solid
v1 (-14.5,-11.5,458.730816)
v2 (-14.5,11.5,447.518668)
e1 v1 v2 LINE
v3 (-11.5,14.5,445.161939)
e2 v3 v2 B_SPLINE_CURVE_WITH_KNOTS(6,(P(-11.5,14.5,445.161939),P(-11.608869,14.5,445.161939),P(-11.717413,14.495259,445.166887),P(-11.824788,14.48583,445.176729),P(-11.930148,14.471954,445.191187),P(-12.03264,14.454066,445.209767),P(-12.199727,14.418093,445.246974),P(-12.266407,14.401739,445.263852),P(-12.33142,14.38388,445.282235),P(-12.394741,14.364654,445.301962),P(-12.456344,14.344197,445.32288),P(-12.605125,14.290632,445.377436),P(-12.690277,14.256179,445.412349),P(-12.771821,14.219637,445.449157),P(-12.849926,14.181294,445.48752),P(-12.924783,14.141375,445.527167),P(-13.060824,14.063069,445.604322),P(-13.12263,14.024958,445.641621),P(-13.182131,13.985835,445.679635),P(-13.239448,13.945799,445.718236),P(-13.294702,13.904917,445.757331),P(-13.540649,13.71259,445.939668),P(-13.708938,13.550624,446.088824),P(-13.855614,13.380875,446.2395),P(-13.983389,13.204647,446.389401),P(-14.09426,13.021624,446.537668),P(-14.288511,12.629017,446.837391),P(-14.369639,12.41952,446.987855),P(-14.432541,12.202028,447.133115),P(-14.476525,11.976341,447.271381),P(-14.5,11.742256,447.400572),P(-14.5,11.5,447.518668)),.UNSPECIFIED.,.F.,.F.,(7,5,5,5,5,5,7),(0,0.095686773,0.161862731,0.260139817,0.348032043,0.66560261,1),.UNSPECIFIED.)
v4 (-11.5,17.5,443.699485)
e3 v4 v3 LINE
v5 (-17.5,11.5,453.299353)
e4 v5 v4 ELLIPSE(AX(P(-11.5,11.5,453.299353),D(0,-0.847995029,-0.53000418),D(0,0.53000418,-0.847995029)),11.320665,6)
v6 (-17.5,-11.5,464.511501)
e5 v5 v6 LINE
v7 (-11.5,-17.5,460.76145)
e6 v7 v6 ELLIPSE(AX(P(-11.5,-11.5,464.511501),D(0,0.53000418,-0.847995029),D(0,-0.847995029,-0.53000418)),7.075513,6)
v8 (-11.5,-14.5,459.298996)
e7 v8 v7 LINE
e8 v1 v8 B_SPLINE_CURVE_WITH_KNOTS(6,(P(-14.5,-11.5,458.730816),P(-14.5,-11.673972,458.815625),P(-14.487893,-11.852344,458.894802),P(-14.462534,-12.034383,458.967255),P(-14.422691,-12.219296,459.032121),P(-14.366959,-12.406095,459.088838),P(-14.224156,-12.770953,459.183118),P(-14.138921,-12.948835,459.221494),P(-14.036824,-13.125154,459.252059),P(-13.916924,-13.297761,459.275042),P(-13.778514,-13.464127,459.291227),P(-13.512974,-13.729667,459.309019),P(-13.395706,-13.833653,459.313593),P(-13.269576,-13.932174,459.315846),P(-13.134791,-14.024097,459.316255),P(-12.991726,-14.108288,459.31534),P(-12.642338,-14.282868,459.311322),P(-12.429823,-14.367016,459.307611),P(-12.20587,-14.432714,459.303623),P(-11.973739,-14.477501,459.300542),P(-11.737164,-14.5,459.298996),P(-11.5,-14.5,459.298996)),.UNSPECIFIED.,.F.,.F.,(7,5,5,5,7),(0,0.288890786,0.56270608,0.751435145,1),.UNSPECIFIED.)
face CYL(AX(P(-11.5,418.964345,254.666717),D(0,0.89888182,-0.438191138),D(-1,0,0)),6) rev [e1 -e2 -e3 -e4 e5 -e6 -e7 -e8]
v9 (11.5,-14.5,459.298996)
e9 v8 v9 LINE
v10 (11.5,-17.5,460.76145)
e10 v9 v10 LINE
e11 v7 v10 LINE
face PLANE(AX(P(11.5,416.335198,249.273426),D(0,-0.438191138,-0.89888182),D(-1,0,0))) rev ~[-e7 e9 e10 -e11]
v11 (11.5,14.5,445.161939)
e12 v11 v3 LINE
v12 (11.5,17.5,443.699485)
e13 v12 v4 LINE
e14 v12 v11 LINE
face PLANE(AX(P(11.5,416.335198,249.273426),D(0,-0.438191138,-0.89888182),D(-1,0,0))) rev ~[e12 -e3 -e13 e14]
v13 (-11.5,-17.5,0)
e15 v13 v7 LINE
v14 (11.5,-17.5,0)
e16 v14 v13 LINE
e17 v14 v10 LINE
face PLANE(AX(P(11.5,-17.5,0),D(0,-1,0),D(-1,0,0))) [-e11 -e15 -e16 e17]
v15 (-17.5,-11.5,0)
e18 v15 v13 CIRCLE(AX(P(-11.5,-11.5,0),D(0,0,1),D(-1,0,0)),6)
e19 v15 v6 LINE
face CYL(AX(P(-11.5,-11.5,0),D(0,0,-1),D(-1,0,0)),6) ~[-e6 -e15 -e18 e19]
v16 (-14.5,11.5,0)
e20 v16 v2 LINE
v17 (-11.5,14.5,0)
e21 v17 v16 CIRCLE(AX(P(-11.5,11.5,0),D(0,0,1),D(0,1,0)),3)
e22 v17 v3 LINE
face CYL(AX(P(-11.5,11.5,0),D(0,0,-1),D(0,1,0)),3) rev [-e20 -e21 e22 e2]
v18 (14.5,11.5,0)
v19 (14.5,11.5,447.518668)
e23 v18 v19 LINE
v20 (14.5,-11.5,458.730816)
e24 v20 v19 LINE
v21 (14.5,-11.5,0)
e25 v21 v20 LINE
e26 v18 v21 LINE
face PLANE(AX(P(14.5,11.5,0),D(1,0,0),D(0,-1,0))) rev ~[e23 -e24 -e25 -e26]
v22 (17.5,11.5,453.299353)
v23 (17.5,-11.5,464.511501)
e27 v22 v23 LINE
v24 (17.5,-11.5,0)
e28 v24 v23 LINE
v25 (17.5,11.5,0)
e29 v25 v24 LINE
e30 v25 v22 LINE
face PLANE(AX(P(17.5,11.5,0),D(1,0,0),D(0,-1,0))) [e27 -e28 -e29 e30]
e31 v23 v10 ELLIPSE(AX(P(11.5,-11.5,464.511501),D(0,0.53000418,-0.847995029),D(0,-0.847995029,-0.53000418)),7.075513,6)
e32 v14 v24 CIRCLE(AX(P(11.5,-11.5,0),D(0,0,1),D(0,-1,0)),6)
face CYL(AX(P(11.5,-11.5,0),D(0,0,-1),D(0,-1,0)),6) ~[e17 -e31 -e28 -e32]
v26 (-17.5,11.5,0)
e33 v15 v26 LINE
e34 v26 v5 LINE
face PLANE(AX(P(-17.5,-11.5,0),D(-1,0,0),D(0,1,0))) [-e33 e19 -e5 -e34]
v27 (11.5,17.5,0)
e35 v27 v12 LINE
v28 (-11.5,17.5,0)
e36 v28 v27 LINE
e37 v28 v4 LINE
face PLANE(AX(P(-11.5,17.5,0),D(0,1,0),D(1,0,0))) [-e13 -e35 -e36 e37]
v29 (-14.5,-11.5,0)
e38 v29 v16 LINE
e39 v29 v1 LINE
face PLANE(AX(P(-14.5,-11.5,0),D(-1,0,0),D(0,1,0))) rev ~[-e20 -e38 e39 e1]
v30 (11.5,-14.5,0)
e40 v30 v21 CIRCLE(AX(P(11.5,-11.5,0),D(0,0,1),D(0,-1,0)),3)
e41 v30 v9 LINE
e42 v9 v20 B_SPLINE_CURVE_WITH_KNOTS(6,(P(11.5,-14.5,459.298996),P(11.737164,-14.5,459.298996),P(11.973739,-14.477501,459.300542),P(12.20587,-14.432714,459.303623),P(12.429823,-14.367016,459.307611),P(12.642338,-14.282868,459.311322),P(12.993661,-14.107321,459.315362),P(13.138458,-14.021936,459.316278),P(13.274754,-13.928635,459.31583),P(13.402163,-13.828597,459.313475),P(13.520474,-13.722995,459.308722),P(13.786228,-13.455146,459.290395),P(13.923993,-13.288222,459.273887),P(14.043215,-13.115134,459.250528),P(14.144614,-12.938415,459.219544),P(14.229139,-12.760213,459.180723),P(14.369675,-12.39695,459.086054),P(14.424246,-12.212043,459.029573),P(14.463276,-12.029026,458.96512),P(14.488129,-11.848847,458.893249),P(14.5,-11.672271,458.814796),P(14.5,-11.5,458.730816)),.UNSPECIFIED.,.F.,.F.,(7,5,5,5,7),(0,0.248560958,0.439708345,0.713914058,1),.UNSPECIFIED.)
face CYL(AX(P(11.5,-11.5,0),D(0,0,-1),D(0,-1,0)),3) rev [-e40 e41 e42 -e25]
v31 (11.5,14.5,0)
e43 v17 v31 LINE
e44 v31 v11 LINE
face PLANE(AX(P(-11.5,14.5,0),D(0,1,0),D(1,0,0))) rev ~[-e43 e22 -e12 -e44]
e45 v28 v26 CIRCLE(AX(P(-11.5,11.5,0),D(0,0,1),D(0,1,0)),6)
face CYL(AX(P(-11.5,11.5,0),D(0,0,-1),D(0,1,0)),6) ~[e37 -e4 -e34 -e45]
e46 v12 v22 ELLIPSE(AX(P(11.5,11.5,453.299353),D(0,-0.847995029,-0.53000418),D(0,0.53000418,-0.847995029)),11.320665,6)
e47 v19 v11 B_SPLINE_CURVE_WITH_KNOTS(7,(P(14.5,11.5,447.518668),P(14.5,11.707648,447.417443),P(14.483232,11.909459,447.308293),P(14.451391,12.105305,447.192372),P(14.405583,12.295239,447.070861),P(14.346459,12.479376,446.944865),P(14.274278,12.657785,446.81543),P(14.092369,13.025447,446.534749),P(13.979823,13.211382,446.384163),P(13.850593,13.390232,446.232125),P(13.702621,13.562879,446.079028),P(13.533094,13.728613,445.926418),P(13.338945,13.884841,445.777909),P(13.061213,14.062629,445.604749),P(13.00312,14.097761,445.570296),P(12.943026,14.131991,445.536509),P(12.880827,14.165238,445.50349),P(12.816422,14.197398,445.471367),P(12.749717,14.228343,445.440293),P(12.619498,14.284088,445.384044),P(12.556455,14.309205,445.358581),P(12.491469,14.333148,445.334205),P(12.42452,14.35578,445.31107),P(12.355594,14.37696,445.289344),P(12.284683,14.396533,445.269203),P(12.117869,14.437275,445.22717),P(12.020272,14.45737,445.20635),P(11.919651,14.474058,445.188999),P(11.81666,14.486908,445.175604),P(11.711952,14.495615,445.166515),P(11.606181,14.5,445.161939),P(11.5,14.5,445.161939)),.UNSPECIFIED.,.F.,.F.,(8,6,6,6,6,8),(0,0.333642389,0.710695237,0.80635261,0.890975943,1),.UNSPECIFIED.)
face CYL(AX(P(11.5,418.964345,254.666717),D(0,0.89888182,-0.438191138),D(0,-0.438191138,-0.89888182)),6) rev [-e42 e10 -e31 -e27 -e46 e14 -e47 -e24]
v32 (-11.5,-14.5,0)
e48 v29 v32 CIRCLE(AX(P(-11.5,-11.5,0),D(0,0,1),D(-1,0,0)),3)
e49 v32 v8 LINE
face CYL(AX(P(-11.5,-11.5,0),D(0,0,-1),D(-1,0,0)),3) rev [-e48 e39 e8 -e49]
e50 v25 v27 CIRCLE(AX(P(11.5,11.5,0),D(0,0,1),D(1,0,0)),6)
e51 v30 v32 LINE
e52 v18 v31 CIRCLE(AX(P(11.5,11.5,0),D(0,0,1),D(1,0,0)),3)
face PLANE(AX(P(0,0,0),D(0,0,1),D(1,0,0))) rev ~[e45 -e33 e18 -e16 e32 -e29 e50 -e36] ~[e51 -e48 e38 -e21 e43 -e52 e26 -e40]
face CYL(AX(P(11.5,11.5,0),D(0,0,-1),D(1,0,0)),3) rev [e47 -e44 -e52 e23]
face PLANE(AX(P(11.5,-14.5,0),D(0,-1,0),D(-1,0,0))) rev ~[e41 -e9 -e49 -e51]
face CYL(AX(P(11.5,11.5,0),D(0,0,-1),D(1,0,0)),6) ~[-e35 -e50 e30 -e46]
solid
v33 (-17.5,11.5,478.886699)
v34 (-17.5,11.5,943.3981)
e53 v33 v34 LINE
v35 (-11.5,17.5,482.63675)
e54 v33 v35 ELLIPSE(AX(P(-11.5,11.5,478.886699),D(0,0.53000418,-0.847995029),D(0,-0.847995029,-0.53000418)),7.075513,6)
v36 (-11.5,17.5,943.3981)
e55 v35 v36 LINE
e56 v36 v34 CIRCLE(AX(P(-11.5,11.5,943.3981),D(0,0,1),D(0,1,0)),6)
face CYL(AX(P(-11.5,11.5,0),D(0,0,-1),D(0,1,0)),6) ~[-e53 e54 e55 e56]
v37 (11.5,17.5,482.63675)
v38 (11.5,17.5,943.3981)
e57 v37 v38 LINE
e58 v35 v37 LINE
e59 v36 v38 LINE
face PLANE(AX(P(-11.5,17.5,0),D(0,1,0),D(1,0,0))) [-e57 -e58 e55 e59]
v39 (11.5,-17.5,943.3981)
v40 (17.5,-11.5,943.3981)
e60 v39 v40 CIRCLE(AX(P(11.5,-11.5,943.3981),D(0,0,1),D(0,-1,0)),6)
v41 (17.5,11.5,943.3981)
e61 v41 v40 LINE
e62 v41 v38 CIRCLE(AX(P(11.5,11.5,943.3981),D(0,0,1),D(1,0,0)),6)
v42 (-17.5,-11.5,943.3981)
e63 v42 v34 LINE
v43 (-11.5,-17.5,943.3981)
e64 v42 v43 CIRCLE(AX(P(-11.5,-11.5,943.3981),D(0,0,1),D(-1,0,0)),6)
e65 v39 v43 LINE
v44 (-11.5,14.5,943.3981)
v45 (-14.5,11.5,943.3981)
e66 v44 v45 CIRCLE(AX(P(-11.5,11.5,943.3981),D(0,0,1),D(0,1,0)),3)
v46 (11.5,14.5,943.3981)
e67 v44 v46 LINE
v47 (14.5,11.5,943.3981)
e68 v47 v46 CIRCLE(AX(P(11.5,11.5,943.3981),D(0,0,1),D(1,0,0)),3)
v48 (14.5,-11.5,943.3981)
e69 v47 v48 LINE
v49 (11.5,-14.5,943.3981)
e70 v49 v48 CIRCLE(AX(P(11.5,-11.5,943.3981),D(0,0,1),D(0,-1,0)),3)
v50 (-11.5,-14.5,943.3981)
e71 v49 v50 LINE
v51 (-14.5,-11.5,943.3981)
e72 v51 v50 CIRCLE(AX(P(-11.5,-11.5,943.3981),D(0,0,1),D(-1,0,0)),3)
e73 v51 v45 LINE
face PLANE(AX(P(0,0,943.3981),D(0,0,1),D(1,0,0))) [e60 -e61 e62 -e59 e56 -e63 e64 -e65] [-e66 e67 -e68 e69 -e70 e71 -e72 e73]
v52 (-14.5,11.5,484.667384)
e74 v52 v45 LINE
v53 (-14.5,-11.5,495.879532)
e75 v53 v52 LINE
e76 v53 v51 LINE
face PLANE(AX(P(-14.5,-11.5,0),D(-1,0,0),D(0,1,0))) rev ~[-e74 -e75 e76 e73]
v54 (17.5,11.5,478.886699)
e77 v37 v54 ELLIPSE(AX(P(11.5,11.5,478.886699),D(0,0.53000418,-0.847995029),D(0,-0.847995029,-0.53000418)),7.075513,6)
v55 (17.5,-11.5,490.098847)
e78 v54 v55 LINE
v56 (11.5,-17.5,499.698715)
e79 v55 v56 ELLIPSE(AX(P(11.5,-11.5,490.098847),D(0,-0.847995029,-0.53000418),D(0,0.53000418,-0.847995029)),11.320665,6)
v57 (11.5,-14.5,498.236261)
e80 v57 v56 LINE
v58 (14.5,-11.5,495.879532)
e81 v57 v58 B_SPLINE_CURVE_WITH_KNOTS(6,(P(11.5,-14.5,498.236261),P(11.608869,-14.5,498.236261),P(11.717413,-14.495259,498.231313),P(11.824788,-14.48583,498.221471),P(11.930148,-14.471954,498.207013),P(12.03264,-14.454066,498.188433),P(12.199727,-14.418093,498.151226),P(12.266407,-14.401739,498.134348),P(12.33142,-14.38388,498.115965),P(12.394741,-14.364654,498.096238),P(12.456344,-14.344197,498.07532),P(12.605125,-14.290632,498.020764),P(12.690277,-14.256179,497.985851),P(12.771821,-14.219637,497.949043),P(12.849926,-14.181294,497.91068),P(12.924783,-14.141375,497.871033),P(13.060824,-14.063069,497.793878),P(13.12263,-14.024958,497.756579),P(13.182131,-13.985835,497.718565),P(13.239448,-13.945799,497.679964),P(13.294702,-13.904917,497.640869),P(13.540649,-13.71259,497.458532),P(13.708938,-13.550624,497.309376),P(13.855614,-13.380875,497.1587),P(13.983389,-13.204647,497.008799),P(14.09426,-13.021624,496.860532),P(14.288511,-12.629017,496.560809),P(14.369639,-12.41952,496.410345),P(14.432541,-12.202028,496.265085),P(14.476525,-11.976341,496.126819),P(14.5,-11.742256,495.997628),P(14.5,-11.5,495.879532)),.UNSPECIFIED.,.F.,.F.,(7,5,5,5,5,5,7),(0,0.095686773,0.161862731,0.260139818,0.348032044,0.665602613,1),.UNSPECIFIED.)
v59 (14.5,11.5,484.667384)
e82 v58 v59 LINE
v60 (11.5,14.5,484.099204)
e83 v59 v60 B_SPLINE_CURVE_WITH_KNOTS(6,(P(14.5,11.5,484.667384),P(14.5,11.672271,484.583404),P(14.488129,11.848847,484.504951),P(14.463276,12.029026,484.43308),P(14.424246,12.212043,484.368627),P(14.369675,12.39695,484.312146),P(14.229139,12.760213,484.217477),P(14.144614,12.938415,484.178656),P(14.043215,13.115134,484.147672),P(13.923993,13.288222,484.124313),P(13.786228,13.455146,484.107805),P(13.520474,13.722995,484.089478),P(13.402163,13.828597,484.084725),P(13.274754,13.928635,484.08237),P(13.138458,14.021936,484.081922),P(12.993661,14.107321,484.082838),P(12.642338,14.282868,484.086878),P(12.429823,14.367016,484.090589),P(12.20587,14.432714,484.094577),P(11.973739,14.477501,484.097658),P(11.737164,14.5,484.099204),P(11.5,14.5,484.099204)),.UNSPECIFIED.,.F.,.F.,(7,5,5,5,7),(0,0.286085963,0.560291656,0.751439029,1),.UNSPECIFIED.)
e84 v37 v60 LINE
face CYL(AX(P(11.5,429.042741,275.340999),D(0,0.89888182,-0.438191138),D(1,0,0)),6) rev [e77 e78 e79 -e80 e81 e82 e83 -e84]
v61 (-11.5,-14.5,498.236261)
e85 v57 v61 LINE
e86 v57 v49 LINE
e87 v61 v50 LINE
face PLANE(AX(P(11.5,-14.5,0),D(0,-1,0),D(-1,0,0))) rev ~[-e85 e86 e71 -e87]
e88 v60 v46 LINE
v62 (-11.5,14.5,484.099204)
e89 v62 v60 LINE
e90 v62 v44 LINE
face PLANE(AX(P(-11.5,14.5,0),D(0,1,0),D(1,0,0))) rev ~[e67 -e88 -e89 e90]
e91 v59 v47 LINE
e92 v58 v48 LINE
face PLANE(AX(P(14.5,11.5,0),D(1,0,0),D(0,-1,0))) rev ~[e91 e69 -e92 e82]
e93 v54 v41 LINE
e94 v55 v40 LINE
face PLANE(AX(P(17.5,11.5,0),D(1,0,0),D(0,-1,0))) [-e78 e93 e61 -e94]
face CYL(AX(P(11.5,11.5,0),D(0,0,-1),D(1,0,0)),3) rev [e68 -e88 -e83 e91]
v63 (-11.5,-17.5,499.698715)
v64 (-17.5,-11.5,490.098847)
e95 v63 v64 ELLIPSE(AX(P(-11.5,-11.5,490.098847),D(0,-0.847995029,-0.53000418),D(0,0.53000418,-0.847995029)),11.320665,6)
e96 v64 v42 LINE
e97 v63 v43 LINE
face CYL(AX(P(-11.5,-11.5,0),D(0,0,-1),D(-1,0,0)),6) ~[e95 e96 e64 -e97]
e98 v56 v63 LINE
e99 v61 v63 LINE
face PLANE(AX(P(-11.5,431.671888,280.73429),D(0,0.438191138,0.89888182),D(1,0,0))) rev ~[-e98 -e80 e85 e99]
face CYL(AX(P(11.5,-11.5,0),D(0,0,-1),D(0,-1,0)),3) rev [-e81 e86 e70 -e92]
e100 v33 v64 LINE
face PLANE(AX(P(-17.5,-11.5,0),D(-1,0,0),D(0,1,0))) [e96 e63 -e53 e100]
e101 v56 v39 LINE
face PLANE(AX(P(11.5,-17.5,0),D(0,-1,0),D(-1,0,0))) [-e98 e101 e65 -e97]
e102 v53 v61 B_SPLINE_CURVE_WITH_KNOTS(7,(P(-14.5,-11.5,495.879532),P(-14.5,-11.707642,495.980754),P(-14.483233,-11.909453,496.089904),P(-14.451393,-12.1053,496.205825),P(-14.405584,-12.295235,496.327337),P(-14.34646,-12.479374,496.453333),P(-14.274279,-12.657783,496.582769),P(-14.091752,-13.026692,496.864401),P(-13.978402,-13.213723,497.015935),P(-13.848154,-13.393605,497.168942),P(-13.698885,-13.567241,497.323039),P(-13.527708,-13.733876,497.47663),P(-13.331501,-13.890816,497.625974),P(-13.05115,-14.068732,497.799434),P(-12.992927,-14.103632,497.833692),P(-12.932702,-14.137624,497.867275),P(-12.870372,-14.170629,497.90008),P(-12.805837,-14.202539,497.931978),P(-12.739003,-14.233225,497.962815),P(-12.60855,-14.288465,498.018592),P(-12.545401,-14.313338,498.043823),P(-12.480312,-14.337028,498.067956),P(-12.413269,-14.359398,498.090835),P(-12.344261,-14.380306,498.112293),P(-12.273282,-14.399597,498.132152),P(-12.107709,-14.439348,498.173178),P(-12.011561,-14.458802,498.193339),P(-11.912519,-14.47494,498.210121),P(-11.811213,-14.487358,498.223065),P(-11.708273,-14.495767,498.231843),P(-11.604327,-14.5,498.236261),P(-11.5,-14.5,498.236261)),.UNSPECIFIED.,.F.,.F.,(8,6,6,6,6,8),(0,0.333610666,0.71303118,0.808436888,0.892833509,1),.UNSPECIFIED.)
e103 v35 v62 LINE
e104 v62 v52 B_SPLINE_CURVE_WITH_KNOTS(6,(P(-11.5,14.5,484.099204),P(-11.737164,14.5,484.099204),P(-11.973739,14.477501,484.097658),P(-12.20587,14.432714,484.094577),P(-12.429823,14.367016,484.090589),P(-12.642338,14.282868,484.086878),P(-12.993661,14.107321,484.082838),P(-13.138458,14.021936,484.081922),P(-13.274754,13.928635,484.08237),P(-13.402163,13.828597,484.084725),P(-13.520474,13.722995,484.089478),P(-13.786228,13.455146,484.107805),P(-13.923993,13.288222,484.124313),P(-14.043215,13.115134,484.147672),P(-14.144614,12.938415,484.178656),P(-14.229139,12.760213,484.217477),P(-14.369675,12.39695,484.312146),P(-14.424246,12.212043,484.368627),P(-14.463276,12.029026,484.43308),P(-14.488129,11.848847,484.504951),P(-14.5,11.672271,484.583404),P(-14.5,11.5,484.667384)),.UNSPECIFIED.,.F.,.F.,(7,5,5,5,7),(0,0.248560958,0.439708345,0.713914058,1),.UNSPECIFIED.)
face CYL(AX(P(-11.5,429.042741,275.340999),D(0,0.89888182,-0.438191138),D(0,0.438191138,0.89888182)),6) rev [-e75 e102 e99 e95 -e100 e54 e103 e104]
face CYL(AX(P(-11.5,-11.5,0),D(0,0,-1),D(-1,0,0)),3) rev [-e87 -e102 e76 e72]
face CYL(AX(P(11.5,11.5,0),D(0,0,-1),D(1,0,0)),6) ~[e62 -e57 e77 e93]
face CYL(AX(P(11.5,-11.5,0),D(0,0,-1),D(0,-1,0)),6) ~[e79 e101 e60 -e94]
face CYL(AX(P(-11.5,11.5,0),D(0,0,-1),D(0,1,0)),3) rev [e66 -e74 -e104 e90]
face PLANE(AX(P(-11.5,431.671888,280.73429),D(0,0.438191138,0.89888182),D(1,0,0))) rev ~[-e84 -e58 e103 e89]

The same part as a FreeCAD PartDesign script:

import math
import FreeCAD as App
import Part
import Sketcher
from FreeCAD import Vector

doc = App.newDocument("Part")
body = doc.addObject("PartDesign::Body", "Body")
body.AllowCompound = True

# Sketch on XY plane
sketch1 = body.newObject("Sketcher::SketchObject", "Sketch")
sketch1.AttachmentSupport = (doc.getObject("XY_Plane"), [""])
sketch1.MapMode = "FlatFace"
sketch1.addGeometry(Part.LineSegment(Vector(-17.5, 11.5, 0), Vector(-17.5, -11.5, 0)), False)
sketch1.addGeometry(Part.ArcOfCircle(Part.Circle(Vector(-11.5, -11.5, 0), Vector(0, 0, 1), 6), math.radians(180), math.radians(270)), False)
sketch1.addGeometry(Part.LineSegment(Vector(-11.5, -17.5, 0), Vector(11.5, -17.5, 0)), False)
sketch1.addGeometry(Part.ArcOfCircle(Part.Circle(Vector(11.5, -11.5, 0), Vector(0, 0, 1), 6), math.radians(-90), math.radians(0)), False)
sketch1.addGeometry(Part.LineSegment(Vector(17.5, -11.5, 0), Vector(17.5, 11.5, 0)), False)
sketch1.addGeometry(Part.ArcOfCircle(Part.Circle(Vector(11.5, 11.5, 0), Vector(0, 0, 1), 6), math.radians(0), math.radians(90)), False)
sketch1.addGeometry(Part.LineSegment(Vector(11.5, 17.5, 0), Vector(-11.5, 17.5, 0)), False)
sketch1.addGeometry(Part.ArcOfCircle(Part.Circle(Vector(-11.5, 11.5, 0), Vector(0, 0, 1), 6), math.radians(90), math.radians(180)), False)
sketch1.addGeometry(Part.ArcOfCircle(Part.Circle(Vector(-11.5, 11.5, 0), Vector(0, 0, 1), 3), math.radians(90), math.radians(180)), False)
sketch1.addGeometry(Part.LineSegment(Vector(-11.5, 14.5, 0), Vector(11.5, 14.5, 0)), False)
sketch1.addGeometry(Part.ArcOfCircle(Part.Circle(Vector(11.5, 11.5, 0), Vector(0, 0, 1), 3), math.radians(0), math.radians(90)), False)
sketch1.addGeometry(Part.LineSegment(Vector(14.5, 11.5, 0), Vector(14.5, -11.5, 0)), False)
sketch1.addGeometry(Part.ArcOfCircle(Part.Circle(Vector(11.5, -11.5, 0), Vector(0, 0, 1), 3), math.radians(-90), math.radians(0)), False)
sketch1.addGeometry(Part.LineSegment(Vector(11.5, -14.5, 0), Vector(-11.5, -14.5, 0)), False)
sketch1.addGeometry(Part.ArcOfCircle(Part.Circle(Vector(-11.5, -11.5, 0), Vector(0, 0, 1), 3), math.radians(180), math.radians(270)), False)
sketch1.addGeometry(Part.LineSegment(Vector(-14.5, -11.5, 0), Vector(-14.5, 11.5, 0)), False)
sketch1.addConstraint(Sketcher.Constraint("Tangent", 0, 2, 1, 1))
sketch1.addConstraint(Sketcher.Constraint("Tangent", 1, 2, 2, 1))
sketch1.addConstraint(Sketcher.Constraint("Tangent", 2, 2, 3, 1))
sketch1.addConstraint(Sketcher.Constraint("Tangent", 3, 2, 4, 1))
sketch1.addConstraint(Sketcher.Constraint("Tangent", 4, 2, 5, 1))
sketch1.addConstraint(Sketcher.Constraint("Tangent", 5, 2, 6, 1))
sketch1.addConstraint(Sketcher.Constraint("Tangent", 6, 2, 7, 1))
sketch1.addConstraint(Sketcher.Constraint("Tangent", 7, 2, 0, 1))
sketch1.addConstraint(Sketcher.Constraint("Tangent", 8, 1, 9, 1))
sketch1.addConstraint(Sketcher.Constraint("Tangent", 9, 2, 10, 2))
sketch1.addConstraint(Sketcher.Constraint("Tangent", 10, 1, 11, 1))
sketch1.addConstraint(Sketcher.Constraint("Tangent", 11, 2, 12, 2))
sketch1.addConstraint(Sketcher.Constraint("Tangent", 12, 1, 13, 1))
sketch1.addConstraint(Sketcher.Constraint("Tangent", 13, 2, 14, 2))
sketch1.addConstraint(Sketcher.Constraint("Tangent", 14, 1, 15, 1))
sketch1.addConstraint(Sketcher.Constraint("Tangent", 15, 2, 8, 2))
sketch1.addConstraint(Sketcher.Constraint("Vertical", 0))
sketch1.addConstraint(Sketcher.Constraint("Horizontal", 2))
sketch1.addConstraint(Sketcher.Constraint("Vertical", 4))
sketch1.addConstraint(Sketcher.Constraint("Horizontal", 6))
sketch1.addConstraint(Sketcher.Constraint("Horizontal", 9))
sketch1.addConstraint(Sketcher.Constraint("Vertical", 11))
sketch1.addConstraint(Sketcher.Constraint("Horizontal", 13))
sketch1.addConstraint(Sketcher.Constraint("Vertical", 15))
sketch1.addConstraint(Sketcher.Constraint("Coincident", 8, 3, 7, 3))
sketch1.addConstraint(Sketcher.Constraint("Coincident", 10, 3, 5, 3))
sketch1.addConstraint(Sketcher.Constraint("Coincident", 12, 3, 3, 3))
sketch1.addConstraint(Sketcher.Constraint("Equal", 1, 3))
sketch1.addConstraint(Sketcher.Constraint("Equal", 3, 5))
sketch1.addConstraint(Sketcher.Constraint("Equal", 5, 7))
sketch1.addConstraint(Sketcher.Constraint("Equal", 12, 14))
sketch1.addConstraint(Sketcher.Constraint("Symmetric", 1, 3, 5, 3, -1, 1))
sketch1.addConstraint(Sketcher.Constraint("Equal", 13, 0))
sketch1.addConstraint(Sketcher.Constraint("Radius", 1, 6.0))
sketch1.addConstraint(Sketcher.Constraint("Radius", 8, 3.0))
sketch1.addConstraint(Sketcher.Constraint("DistanceX", 0, 2, -1, 1, 17.5))
pad1 = body.newObject("PartDesign::Pad", "Pad")
pad1.Profile = sketch1
pad1.Length = 943.3981

# Sketch on an angled plane
sketch2 = body.newObject("Sketcher::SketchObject", "Sketch001")
sketch2.Placement = App.Placement(Vector(0, 424.001746, 265.004735), App.Rotation(Vector(1, 0, 0), Vector(0, 0.438191138, 0.89888182), Vector(0, -0.89888182, 0.438191138), "ZXY"))
sketch2.addGeometry(Part.LineSegment(Vector(-18, 11, 0), Vector(-18, -11, 0)), False)
sketch2.addGeometry(Part.ArcOfCircle(Part.Circle(Vector(-12, -11, 0), Vector(0, 0, 1), 6), math.radians(180), math.radians(270)), False)
sketch2.addGeometry(Part.LineSegment(Vector(-12, -17, 0), Vector(12, -17, 0)), False)
sketch2.addGeometry(Part.ArcOfCircle(Part.Circle(Vector(12, -11, 0), Vector(0, 0, 1), 6), math.radians(-90), math.radians(0)), False)
sketch2.addGeometry(Part.LineSegment(Vector(18, -11, 0), Vector(18, 11, 0)), False)
sketch2.addGeometry(Part.ArcOfCircle(Part.Circle(Vector(12, 11, 0), Vector(0, 0, 1), 6), math.radians(0), math.radians(90)), False)
sketch2.addGeometry(Part.LineSegment(Vector(12, 17, 0), Vector(-12, 17, 0)), False)
sketch2.addGeometry(Part.ArcOfCircle(Part.Circle(Vector(-12, 11, 0), Vector(0, 0, 1), 6), math.radians(90), math.radians(180)), False)
sketch2.addConstraint(Sketcher.Constraint("Tangent", 0, 2, 1, 1))
sketch2.addConstraint(Sketcher.Constraint("Tangent", 1, 2, 2, 1))
sketch2.addConstraint(Sketcher.Constraint("Tangent", 2, 2, 3, 1))
sketch2.addConstraint(Sketcher.Constraint("Tangent", 3, 2, 4, 1))
sketch2.addConstraint(Sketcher.Constraint("Tangent", 4, 2, 5, 1))
sketch2.addConstraint(Sketcher.Constraint("Tangent", 5, 2, 6, 1))
sketch2.addConstraint(Sketcher.Constraint("Tangent", 6, 2, 7, 1))
sketch2.addConstraint(Sketcher.Constraint("Tangent", 7, 2, 0, 1))
sketch2.addConstraint(Sketcher.Constraint("Vertical", 0))
sketch2.addConstraint(Sketcher.Constraint("Horizontal", 2))
sketch2.addConstraint(Sketcher.Constraint("Vertical", 4))
sketch2.addConstraint(Sketcher.Constraint("Horizontal", 6))
sketch2.addConstraint(Sketcher.Constraint("Equal", 1, 3))
sketch2.addConstraint(Sketcher.Constraint("Equal", 3, 5))
sketch2.addConstraint(Sketcher.Constraint("Equal", 5, 7))
sketch2.addConstraint(Sketcher.Constraint("Symmetric", 1, 3, 5, 3, -1, 1))
sketch2.addConstraint(Sketcher.Constraint("Equal", 6, 0))
sketch2.addConstraint(Sketcher.Constraint("Radius", 1, 6.0))
sketch2.addConstraint(Sketcher.Constraint("DistanceX", 2, 1, 2, 2, 23.0))
pocket1 = body.newObject("PartDesign::Pocket", "Pocket")
pocket1.Profile = sketch2
pocket1.Length = 943.3981
pocket1.Reversed = True

doc.recompute()
